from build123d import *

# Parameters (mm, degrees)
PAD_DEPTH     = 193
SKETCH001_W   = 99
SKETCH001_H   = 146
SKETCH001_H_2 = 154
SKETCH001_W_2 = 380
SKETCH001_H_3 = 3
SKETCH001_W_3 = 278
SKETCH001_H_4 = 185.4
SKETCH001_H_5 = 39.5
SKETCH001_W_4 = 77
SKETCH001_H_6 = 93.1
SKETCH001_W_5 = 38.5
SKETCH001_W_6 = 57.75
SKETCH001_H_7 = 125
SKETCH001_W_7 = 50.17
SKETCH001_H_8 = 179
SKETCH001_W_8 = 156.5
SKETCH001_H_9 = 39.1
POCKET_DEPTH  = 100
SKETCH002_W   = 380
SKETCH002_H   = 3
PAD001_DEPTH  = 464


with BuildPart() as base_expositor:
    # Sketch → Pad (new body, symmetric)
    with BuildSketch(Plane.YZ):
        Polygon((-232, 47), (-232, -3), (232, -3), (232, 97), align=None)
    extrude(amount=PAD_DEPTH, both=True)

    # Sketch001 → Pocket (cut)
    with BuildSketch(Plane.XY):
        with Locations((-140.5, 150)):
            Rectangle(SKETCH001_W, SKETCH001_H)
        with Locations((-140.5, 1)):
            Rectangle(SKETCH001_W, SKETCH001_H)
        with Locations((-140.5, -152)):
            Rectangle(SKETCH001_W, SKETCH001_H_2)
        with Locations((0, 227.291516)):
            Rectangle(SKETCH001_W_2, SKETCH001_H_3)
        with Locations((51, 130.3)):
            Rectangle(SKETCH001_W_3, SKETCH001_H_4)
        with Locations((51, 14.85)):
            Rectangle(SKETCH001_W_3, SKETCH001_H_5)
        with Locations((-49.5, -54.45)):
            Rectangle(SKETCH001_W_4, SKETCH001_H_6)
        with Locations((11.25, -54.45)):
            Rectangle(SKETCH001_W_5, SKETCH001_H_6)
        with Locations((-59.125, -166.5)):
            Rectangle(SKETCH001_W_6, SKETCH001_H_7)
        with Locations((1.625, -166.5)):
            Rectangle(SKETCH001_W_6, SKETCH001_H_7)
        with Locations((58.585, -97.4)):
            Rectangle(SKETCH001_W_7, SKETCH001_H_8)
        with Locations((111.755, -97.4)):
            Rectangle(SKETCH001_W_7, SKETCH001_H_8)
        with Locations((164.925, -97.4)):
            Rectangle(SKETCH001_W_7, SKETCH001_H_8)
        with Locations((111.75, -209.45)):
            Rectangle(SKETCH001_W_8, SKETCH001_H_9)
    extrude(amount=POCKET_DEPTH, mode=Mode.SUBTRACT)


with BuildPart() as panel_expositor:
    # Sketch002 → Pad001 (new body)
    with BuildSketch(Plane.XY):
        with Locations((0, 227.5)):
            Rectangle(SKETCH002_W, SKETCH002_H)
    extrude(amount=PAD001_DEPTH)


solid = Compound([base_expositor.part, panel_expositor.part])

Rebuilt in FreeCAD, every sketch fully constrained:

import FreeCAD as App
import Part
import Sketcher
Q = App.Units.Quantity


def add_polygon(sketch, points):
    """Adds a closed chain of lines whose ends are joined by coincident constraints."""
    first, n = sketch.GeometryCount, len(points)
    for a, b in zip(points, points[1:] + points[:1]):
        sketch.addGeometry(Part.LineSegment(App.Vector(*a, 0), App.Vector(*b, 0)), False)
    for i in range(n):
        sketch.addConstraint(Sketcher.Constraint("Coincident", first + i, 2, first + (i + 1) % n, 1))

doc = App.newDocument("Part")
body = doc.addObject("PartDesign::Body", "Body")

# Sketch on YZ plane
sketch1 = doc.addObject("Sketcher::SketchObject", "Sketch")
body.addObject(sketch1)
sketch1.AttachmentSupport = (doc.YZ_Plane, [""])
sketch1.MapMode = "FlatFace"
add_polygon(sketch1, [(-232, 47), (-232, -3), (232, -3), (232, 97)])  # lines 0-3
sketch1.addConstraint(Sketcher.Constraint("Vertical", 0))
sketch1.addConstraint(Sketcher.Constraint("Horizontal", 1))
sketch1.addConstraint(Sketcher.Constraint("Vertical", 2))
sketch1.addConstraint(Sketcher.Constraint("DistanceX", 1, 1, 1, 2, Q("464 mm")))
sketch1.addConstraint(Sketcher.Constraint("DistanceY", 0, 2, 0, 1, Q("50 mm")))
sketch1.addConstraint(Sketcher.Constraint("DistanceY", 2, 1, 2, 2, Q("100 mm")))
sketch1.addConstraint(Sketcher.Constraint("DistanceX", 0, 2, -1, 1, Q("232 mm")))
sketch1.addConstraint(Sketcher.Constraint("DistanceY", 0, 2, -1, 1, Q("3 mm")))
pad1 = doc.addObject("PartDesign::Pad", "Pad")
body.addObject(pad1)
pad1.Profile = sketch1
pad1.Length = 386
pad1.Midplane = True

# Sketch on XY plane
sketch2 = doc.addObject("Sketcher::SketchObject", "Sketch001")
body.addObject(sketch2)
sketch2.AttachmentSupport = (doc.XY_Plane, [""])
sketch2.MapMode = "FlatFace"
add_polygon(sketch2, [(-190, 223), (-190, 77), (-91, 77), (-91, 223)])  # lines 0-3
add_polygon(sketch2, [(-190, 74), (-190, -72), (-91, -72), (-91, 74)])  # lines 4-7
add_polygon(sketch2, [(-190, -75), (-190, -229), (-91, -229), (-91, -75)])  # lines 8-11
add_polygon(sketch2, [(-190, 228.791516), (-190, 225.791516), (190, 225.791516), (190, 228.791516)])  # lines 12-15
add_polygon(sketch2, [(-88, 223), (-88, 37.6), (190, 37.6), (190, 223)])  # lines 16-19
add_polygon(sketch2, [(-88, 34.6), (-88, -4.9), (190, -4.9), (190, 34.6)])  # lines 20-23
add_polygon(sketch2, [(-88, -7.9), (-88, -101), (-11, -101), (-11, -7.9)])  # lines 24-27
add_polygon(sketch2, [(-8, -7.9), (-8, -101), (30.5, -101), (30.5, -7.9)])  # lines 28-31
add_polygon(sketch2, [(-88, -104), (-88, -229), (-30.25, -229), (-30.25, -104)])  # lines 32-35
add_polygon(sketch2, [(-27.25, -104), (-27.25, -229), (30.5, -229), (30.5, -104)])  # lines 36-39
add_polygon(sketch2, [(33.5, -7.9), (33.5, -186.9), (83.67, -186.9), (83.67, -7.9)])  # lines 40-43
add_polygon(sketch2, [(86.67, -7.9), (86.67, -186.9), (136.84, -186.9), (136.84, -7.9)])  # lines 44-47
add_polygon(sketch2, [(139.84, -7.9), (139.84, -186.9), (190.01, -186.9), (190.01, -7.9)])  # lines 48-51
add_polygon(sketch2, [(33.5, -189.9), (33.5, -229), (190, -229), (190, -189.9)])  # lines 52-55
sketch2.addConstraint(Sketcher.Constraint("Vertical", 0))
sketch2.addConstraint(Sketcher.Constraint("Horizontal", 1))
sketch2.addConstraint(Sketcher.Constraint("Vertical", 2))
sketch2.addConstraint(Sketcher.Constraint("Horizontal", 3))
sketch2.addConstraint(Sketcher.Constraint("Vertical", 4))
sketch2.addConstraint(Sketcher.Constraint("Horizontal", 5))
sketch2.addConstraint(Sketcher.Constraint("Vertical", 6))
sketch2.addConstraint(Sketcher.Constraint("Horizontal", 7))
sketch2.addConstraint(Sketcher.Constraint("Vertical", 8))
sketch2.addConstraint(Sketcher.Constraint("Horizontal", 9))
sketch2.addConstraint(Sketcher.Constraint("Vertical", 10))
sketch2.addConstraint(Sketcher.Constraint("Horizontal", 11))
sketch2.addConstraint(Sketcher.Constraint("Vertical", 12))
sketch2.addConstraint(Sketcher.Constraint("Horizontal", 13))
sketch2.addConstraint(Sketcher.Constraint("Vertical", 14))
sketch2.addConstraint(Sketcher.Constraint("Horizontal", 15))
sketch2.addConstraint(Sketcher.Constraint("Vertical", 16))
sketch2.addConstraint(Sketcher.Constraint("Horizontal", 17))
sketch2.addConstraint(Sketcher.Constraint("Vertical", 18))
sketch2.addConstraint(Sketcher.Constraint("Horizontal", 19))
sketch2.addConstraint(Sketcher.Constraint("Vertical", 20))
sketch2.addConstraint(Sketcher.Constraint("Horizontal", 21))
sketch2.addConstraint(Sketcher.Constraint("Vertical", 22))
sketch2.addConstraint(Sketcher.Constraint("Horizontal", 23))
sketch2.addConstraint(Sketcher.Constraint("Vertical", 24))
sketch2.addConstraint(Sketcher.Constraint("Horizontal", 25))
sketch2.addConstraint(Sketcher.Constraint("Vertical", 26))
sketch2.addConstraint(Sketcher.Constraint("Horizontal", 27))
sketch2.addConstraint(Sketcher.Constraint("Vertical", 28))
sketch2.addConstraint(Sketcher.Constraint("Horizontal", 29))
sketch2.addConstraint(Sketcher.Constraint("Vertical", 30))
sketch2.addConstraint(Sketcher.Constraint("Horizontal", 31))
sketch2.addConstraint(Sketcher.Constraint("Vertical", 32))
sketch2.addConstraint(Sketcher.Constraint("Horizontal", 33))
sketch2.addConstraint(Sketcher.Constraint("Vertical", 34))
sketch2.addConstraint(Sketcher.Constraint("Horizontal", 35))
sketch2.addConstraint(Sketcher.Constraint("Vertical", 36))
sketch2.addConstraint(Sketcher.Constraint("Horizontal", 37))
sketch2.addConstraint(Sketcher.Constraint("Vertical", 38))
sketch2.addConstraint(Sketcher.Constraint("Horizontal", 39))
sketch2.addConstraint(Sketcher.Constraint("Vertical", 40))
sketch2.addConstraint(Sketcher.Constraint("Horizontal", 41))
sketch2.addConstraint(Sketcher.Constraint("Vertical", 42))
sketch2.addConstraint(Sketcher.Constraint("Horizontal", 43))
sketch2.addConstraint(Sketcher.Constraint("Vertical", 44))
sketch2.addConstraint(Sketcher.Constraint("Horizontal", 45))
sketch2.addConstraint(Sketcher.Constraint("Vertical", 46))
sketch2.addConstraint(Sketcher.Constraint("Horizontal", 47))
sketch2.addConstraint(Sketcher.Constraint("Vertical", 48))
sketch2.addConstraint(Sketcher.Constraint("Horizontal", 49))
sketch2.addConstraint(Sketcher.Constraint("Vertical", 50))
sketch2.addConstraint(Sketcher.Constraint("Horizontal", 51))
sketch2.addConstraint(Sketcher.Constraint("Vertical", 52))
sketch2.addConstraint(Sketcher.Constraint("Horizontal", 53))
sketch2.addConstraint(Sketcher.Constraint("Vertical", 54))
sketch2.addConstraint(Sketcher.Constraint("Horizontal", 55))
sketch2.addConstraint(Sketcher.Constraint("Symmetric", 3, 2, 18, 2, -2))
sketch2.addConstraint(Sketcher.Constraint("Symmetric", 8, 2, 53, 2, -2))
sketch2.addConstraint(Sketcher.Constraint("Horizontal", 25, 2, 28, 2))
sketch2.addConstraint(Sketcher.Constraint("Horizontal", 27, 2, 30, 2))
sketch2.addConstraint(Sketcher.Constraint("Horizontal", 9, 2, 32, 2))
sketch2.addConstraint(Sketcher.Constraint("Horizontal", 33, 2, 36, 2))
sketch2.addConstraint(Sketcher.Constraint("Horizontal", 35, 2, 38, 2))
sketch2.addConstraint(Sketcher.Constraint("Horizontal", 31, 2, 42, 2))
sketch2.addConstraint(Sketcher.Constraint("Horizontal", 41, 2, 44, 2))
sketch2.addConstraint(Sketcher.Constraint("Horizontal", 43, 2, 46, 2))
sketch2.addConstraint(Sketcher.Constraint("Horizontal", 45, 2, 48, 2))
sketch2.addConstraint(Sketcher.Constraint("Horizontal", 47, 2, 50, 2))
sketch2.addConstraint(Sketcher.Constraint("Vertical", 3, 2, 4, 2))
sketch2.addConstraint(Sketcher.Constraint("Vertical", 2, 2, 5, 2))
sketch2.addConstraint(Sketcher.Constraint("Vertical", 7, 2, 8, 2))
sketch2.addConstraint(Sketcher.Constraint("Vertical", 6, 2, 9, 2))
sketch2.addConstraint(Sketcher.Constraint("Vertical", 11, 2, 12, 2))
sketch2.addConstraint(Sketcher.Constraint("Vertical", 14, 2, 17, 2))
sketch2.addConstraint(Sketcher.Constraint("Vertical", 19, 2, 20, 2))
sketch2.addConstraint(Sketcher.Constraint("Vertical", 18, 2, 21, 2))
sketch2.addConstraint(Sketcher.Constraint("Vertical", 23, 2, 24, 2))
sketch2.addConstraint(Sketcher.Constraint("Vertical", 27, 2, 32, 2))
sketch2.addConstraint(Sketcher.Constraint("Vertical", 30, 2, 37, 2))
sketch2.addConstraint(Sketcher.Constraint("Vertical", 43, 2, 52, 2))
sketch2.addConstraint(Sketcher.Constraint("Equal", 35, 37))
sketch2.addConstraint(Sketcher.Constraint("Equal", 43, 45))
sketch2.addConstraint(Sketcher.Constraint("Equal", 47, 49))
sketch2.addConstraint(Sketcher.Constraint("Equal", 2, 4))
sketch2.addConstraint(Sketcher.Constraint("DistanceX", 1, 1, 1, 2, Q("99 mm")))
sketch2.addConstraint(Sketcher.Constraint("DistanceX", 13, 1, 13, 2, Q("380 mm")))
sketch2.addConstraint(Sketcher.Constraint("DistanceX", 17, 1, 17, 2, Q("278 mm")))
sketch2.addConstraint(Sketcher.Constraint("DistanceX", 25, 1, 25, 2, Q("77 mm")))
sketch2.addConstraint(Sketcher.Constraint("DistanceY", 0, 2, 0, 1, Q("146 mm")))
sketch2.addConstraint(Sketcher.Constraint("DistanceY", 8, 2, 8, 1, Q("154 mm")))
sketch2.addConstraint(Sketcher.Constraint("DistanceY", 12, 2, 12, 1, Q("3 mm")))
sketch2.addConstraint(Sketcher.Constraint("DistanceY", 32, 2, 32, 1, Q("125 mm")))
sketch2.addConstraint(Sketcher.Constraint("DistanceY", 40, 2, 40, 1, Q("179 mm")))
sketch2.addConstraint(Sketcher.Constraint("DistanceX", 29, 1, 29, 2, Q("38.5 mm")))
sketch2.addConstraint(Sketcher.Constraint("DistanceX", 53, 1, 53, 2, Q("156.5 mm")))
sketch2.addConstraint(Sketcher.Constraint("DistanceY", 16, 2, 16, 1, Q("185.4 mm")))
sketch2.addConstraint(Sketcher.Constraint("DistanceY", 20, 2, 20, 1, Q("39.5 mm")))
sketch2.addConstraint(Sketcher.Constraint("DistanceY", 24, 2, 24, 1, Q("93.1 mm")))
sketch2.addConstraint(Sketcher.Constraint("DistanceY", 52, 2, 52, 1, Q("39.1 mm")))
sketch2.addConstraint(Sketcher.Constraint("DistanceY", -1, 1, 0, 2, Q("77 mm")))
sketch2.addConstraint(Sketcher.Constraint("DistanceY", 4, 2, -1, 1, Q("72 mm")))
sketch2.addConstraint(Sketcher.Constraint("DistanceY", 8, 2, -1, 1, Q("229 mm")))
sketch2.addConstraint(Sketcher.Constraint("DistanceY", 24, 2, -1, 1, Q("101 mm")))
sketch2.addConstraint(Sketcher.Constraint("DistanceX", 28, 2, -1, 1, Q("8 mm")))
sketch2.addConstraint(Sketcher.Constraint("DistanceY", 22, 2, 17, 2, Q("3 mm")))
sketch2.addConstraint(Sketcher.Constraint("DistanceX", 33, 2, 36, 2, Q("3 mm")))
sketch2.addConstraint(Sketcher.Constraint("DistanceX", 41, 2, 44, 2, Q("3 mm")))
sketch2.addConstraint(Sketcher.Constraint("DistanceX", 45, 2, 48, 2, Q("3 mm")))
sketch2.addConstraint(Sketcher.Constraint("DistanceX", 41, 1, 41, 2, Q("50.17 mm")))
sketch2.addConstraint(Sketcher.Constraint("DistanceY", -1, 1, 12, 2, Q("225.791516 mm")))
pocket1 = doc.addObject("PartDesign::Pocket", "Pocket")
body.addObject(pocket1)
pocket1.Profile = sketch2
pocket1.Length = 100
pocket1.Reversed = True
body2 = doc.addObject("PartDesign::Body", "Body001")

# Sketch on XY plane
sketch3 = doc.addObject("Sketcher::SketchObject", "Sketch002")
body2.addObject(sketch3)
sketch3.AttachmentSupport = (doc.getObject("XY_Plane001"), [""])
sketch3.MapMode = "FlatFace"
add_polygon(sketch3, [(-190, 229), (-190, 226), (190, 226), (190, 229)])  # lines 0-3
sketch3.addConstraint(Sketcher.Constraint("Vertical", 0))
sketch3.addConstraint(Sketcher.Constraint("Horizontal", 1))
sketch3.addConstraint(Sketcher.Constraint("Vertical", 2))
sketch3.addConstraint(Sketcher.Constraint("Horizontal", 3))
sketch3.addConstraint(Sketcher.Constraint("DistanceX", 1, 1, 1, 2, Q("380 mm")))
sketch3.addConstraint(Sketcher.Constraint("DistanceY", 0, 2, 0, 1, Q("3 mm")))
sketch3.addConstraint(Sketcher.Constraint("DistanceX", 0, 2, -1, 1, Q("190 mm")))
sketch3.addConstraint(Sketcher.Constraint("DistanceY", -1, 1, 0, 2, Q("226 mm")))
pad2 = doc.addObject("PartDesign::Pad", "Pad001")
body2.addObject(pad2)
pad2.Profile = sketch3
pad2.Length = 464

doc.recompute()
